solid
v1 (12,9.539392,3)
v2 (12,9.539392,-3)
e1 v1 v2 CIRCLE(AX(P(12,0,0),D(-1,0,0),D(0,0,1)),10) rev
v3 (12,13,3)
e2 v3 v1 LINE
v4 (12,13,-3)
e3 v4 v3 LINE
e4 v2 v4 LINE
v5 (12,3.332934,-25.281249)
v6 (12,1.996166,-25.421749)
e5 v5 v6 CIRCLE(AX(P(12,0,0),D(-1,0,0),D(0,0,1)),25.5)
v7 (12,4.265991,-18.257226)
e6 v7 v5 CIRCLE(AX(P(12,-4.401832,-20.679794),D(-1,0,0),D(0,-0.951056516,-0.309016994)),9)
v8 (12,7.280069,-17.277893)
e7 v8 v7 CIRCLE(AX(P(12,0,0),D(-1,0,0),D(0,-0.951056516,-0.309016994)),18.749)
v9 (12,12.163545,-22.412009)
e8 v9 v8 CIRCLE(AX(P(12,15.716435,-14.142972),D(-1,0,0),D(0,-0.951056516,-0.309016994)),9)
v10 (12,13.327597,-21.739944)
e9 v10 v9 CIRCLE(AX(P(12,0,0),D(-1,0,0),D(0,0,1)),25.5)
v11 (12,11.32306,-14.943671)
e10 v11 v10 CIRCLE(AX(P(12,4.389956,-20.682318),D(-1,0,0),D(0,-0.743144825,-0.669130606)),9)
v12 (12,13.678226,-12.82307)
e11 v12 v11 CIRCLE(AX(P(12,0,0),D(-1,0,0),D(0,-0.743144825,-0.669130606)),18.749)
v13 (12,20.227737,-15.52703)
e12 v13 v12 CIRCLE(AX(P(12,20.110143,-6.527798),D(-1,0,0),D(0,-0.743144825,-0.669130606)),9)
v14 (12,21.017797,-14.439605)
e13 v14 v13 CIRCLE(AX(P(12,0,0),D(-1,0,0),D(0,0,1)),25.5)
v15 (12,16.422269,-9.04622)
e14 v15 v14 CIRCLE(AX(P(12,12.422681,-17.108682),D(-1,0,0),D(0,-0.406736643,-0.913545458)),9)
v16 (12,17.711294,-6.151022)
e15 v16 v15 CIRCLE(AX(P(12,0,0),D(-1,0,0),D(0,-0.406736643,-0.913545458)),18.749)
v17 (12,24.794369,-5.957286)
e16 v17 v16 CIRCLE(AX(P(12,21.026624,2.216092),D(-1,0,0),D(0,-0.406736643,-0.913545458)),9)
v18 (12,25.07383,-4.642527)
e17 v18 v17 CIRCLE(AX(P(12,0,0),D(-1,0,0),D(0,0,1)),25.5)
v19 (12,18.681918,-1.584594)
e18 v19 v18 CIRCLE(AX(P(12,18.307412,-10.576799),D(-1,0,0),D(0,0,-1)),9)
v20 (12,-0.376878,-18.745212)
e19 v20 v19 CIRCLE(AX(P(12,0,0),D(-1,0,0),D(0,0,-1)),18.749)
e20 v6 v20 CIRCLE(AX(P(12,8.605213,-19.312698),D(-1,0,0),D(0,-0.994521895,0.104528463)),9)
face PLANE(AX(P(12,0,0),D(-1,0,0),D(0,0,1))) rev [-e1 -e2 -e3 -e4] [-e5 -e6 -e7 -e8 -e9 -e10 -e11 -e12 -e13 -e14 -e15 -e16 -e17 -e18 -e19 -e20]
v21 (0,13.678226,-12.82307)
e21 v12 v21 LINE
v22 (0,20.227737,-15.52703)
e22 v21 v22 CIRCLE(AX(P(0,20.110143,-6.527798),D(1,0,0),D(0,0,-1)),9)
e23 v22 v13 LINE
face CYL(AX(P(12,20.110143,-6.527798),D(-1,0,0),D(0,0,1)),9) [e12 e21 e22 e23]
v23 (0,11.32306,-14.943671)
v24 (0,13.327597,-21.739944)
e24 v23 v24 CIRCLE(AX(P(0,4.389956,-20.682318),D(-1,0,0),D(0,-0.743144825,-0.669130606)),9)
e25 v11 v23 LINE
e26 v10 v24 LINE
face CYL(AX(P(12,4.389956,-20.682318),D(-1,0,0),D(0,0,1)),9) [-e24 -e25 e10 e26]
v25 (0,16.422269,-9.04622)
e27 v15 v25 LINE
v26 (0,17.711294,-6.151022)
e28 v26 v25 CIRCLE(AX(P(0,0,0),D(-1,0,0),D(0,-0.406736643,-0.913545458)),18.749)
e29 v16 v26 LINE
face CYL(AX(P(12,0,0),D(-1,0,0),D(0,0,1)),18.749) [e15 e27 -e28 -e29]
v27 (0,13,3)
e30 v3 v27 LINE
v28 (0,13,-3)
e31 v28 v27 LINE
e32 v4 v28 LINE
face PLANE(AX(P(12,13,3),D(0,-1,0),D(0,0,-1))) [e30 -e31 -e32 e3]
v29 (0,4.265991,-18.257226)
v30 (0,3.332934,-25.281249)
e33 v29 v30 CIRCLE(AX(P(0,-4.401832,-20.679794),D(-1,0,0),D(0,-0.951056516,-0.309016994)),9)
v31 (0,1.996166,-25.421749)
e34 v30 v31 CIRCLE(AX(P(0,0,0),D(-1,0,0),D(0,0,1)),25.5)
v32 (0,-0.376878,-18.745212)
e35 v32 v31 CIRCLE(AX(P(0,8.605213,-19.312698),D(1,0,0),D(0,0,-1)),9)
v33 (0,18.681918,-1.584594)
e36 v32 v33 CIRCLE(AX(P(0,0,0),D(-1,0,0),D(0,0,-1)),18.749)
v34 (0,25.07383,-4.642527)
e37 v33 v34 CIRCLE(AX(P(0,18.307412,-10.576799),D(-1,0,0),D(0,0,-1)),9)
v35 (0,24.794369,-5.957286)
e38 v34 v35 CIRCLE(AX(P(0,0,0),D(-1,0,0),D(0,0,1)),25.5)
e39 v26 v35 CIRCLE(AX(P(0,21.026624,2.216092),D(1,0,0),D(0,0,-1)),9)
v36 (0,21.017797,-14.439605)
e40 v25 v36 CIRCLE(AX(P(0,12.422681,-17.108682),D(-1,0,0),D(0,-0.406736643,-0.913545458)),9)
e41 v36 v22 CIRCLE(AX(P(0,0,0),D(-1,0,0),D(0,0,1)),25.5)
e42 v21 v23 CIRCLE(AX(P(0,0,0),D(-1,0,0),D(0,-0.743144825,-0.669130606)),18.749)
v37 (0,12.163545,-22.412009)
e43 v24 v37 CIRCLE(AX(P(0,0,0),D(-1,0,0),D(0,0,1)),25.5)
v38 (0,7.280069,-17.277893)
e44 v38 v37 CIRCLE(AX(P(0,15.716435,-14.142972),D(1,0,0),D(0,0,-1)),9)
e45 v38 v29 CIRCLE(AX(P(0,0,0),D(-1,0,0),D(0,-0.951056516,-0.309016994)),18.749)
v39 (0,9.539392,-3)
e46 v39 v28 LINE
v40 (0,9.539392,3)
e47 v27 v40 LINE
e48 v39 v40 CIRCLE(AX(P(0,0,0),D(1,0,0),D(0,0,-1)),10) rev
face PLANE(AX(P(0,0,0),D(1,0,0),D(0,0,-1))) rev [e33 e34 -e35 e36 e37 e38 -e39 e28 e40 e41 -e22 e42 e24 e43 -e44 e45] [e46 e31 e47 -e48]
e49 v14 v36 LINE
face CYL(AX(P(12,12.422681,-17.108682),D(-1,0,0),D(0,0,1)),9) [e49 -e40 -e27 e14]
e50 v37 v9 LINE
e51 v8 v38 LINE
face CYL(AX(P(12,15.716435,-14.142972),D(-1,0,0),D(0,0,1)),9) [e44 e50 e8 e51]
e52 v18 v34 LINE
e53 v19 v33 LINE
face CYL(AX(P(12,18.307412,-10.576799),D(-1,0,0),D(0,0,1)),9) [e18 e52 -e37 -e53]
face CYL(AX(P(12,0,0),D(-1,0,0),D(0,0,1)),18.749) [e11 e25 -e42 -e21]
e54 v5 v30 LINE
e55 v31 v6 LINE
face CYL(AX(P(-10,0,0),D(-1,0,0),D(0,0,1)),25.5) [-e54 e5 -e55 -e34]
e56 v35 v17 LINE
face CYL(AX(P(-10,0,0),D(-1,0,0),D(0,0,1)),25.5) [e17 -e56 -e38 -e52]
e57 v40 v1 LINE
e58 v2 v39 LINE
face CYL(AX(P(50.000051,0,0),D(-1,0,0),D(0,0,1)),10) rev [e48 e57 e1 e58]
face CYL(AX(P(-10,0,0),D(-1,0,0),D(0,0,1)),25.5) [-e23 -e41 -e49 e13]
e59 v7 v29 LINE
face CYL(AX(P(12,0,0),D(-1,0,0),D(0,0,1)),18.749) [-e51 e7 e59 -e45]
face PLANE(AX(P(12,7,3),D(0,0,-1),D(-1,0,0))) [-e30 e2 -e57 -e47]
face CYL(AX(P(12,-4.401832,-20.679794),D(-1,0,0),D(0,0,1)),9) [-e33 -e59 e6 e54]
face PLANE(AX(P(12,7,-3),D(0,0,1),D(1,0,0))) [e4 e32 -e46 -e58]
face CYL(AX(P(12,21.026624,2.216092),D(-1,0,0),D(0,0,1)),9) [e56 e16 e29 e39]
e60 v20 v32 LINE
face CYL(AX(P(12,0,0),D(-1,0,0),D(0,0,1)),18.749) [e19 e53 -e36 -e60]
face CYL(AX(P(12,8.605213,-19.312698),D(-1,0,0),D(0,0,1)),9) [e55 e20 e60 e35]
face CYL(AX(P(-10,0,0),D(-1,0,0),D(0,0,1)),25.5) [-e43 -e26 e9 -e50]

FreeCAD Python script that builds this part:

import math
import FreeCAD as App
import Part
import Sketcher

doc = App.newDocument("Part")
body = doc.addObject("PartDesign::Body", "Body")

sketch1 = body.newObject("Sketcher::SketchObject", "Sketch")
sketch1.AttachmentSupport = (doc.getObject("XZ_Plane"), [""])
sketch1.MapMode = "FlatFace"
sketch1.addGeometry([
    Part.LineSegment(App.Vector(0, -26, 0), App.Vector(0, 0, 0)),
    Part.LineSegment(App.Vector(0, 0, 0), App.Vector(12, 0, 0)),
    Part.LineSegment(App.Vector(12, 0, 0), App.Vector(12, -26, 0)),
    Part.LineSegment(App.Vector(12, -26, 0), App.Vector(0, -26, 0)),
], False)
sketch1.addConstraint([
    Sketcher.Constraint("Coincident", 0, 2, 1, 1),
    Sketcher.Constraint("Coincident", 1, 2, 2, 1),
    Sketcher.Constraint("Coincident", 2, 2, 3, 1),
    Sketcher.Constraint("Coincident", 3, 2, 0, 1),
    Sketcher.Constraint("Vertical", 0),
    Sketcher.Constraint("Horizontal", 1),
    Sketcher.Constraint("Vertical", 2),
    Sketcher.Constraint("Horizontal", 3),
    Sketcher.Constraint("Coincident", 0, 2, -1, 1),
    Sketcher.Constraint("DistanceX", 1, 1, 1, 2, 12.0),
    Sketcher.Constraint("DistanceY", 0, 1, 0, 2, 25.5),
])
revolution = body.newObject("PartDesign::Revolution", "Revolution")
revolution.Profile = sketch1
revolution.ReferenceAxis = (sketch1, ["H_Axis"])
revolution.Angle = 360

sketch2 = body.newObject("Sketcher::SketchObject", "Sketch001")
sketch2.AttachmentSupport = (doc.getObject("YZ_Plane"), [""])
sketch2.MapMode = "FlatFace"
sketch2.addGeometry([
    Part.ArcOfCircle(Part.Circle(App.Vector(0, 0, 0), App.Vector(0, 0, 1), 18.7), math.radians(-4.85), math.radians(4.85)),
    Part.ArcOfCircle(Part.Circle(App.Vector(18.3, -10.6, 0), App.Vector(0, 0, 1), 9), math.radians(41), math.radians(88)),
    Part.ArcOfCircle(Part.Circle(App.Vector(0, 0, 0), App.Vector(0, 0, 1), 25.5), math.radians(-11), math.radians(11)),
    Part.ArcOfCircle(Part.Circle(App.Vector(18.3, 10.6, 0), App.Vector(0, 0, 1), 9), math.radians(-88), math.radians(-41)),
], False)
sketch2.addConstraint([
    Sketcher.Constraint("Coincident", 0, 1, 1, 2),
    Sketcher.Constraint("Coincident", 1, 1, 2, 1),
    Sketcher.Constraint("Coincident", 2, 2, 3, 2),
    Sketcher.Constraint("Coincident", 3, 1, 0, 2),
    Sketcher.Constraint("Coincident", 0, 3, -1, 1),
    Sketcher.Constraint("Coincident", 2, 3, -1, 1),
    Sketcher.Constraint("Equal", 1, 3),
    Sketcher.Constraint("Symmetric", 1, 3, 3, 3, -1),
    Sketcher.Constraint("Radius", 1, 9.0),
    Sketcher.Constraint("Radius", 0, 18.749),
    Sketcher.Constraint("Radius", 2, 25.5254),
    Sketcher.Constraint("DistanceY", 1, 3, -1, 1, 10.576799),
    Sketcher.Constraint("DistanceX", -1, 1, 1, 3, 18.307412),
])
pocket1 = body.newObject("PartDesign::Pocket", "Pocket")
pocket1.Profile = sketch2
pocket1.Type = "ThroughAll"
pocket1.Reversed = True
doc.recompute()

polarpattern = body.newObject("PartDesign::PolarPattern", "PolarPattern")
polarpattern.Originals = [pocket1]
polarpattern.Axis = (doc.getObject("X_Axis"), [""])
polarpattern.Angle = 360
polarpattern.Occurrences = 15
body.Tip = polarpattern

sketch3 = body.newObject("Sketcher::SketchObject", "Sketch002")
sketch3.AttachmentSupport = (doc.getObject("YZ_Plane"), [""])
sketch3.MapMode = "FlatFace"
sketch3.addGeometry(Part.Circle(App.Vector(0, 0, 0), App.Vector(0, 0, 1), 10), False)
sketch3.addConstraint([
    Sketcher.Constraint("Coincident", 0, 3, -1, 1),
    Sketcher.Constraint("Diameter", 0, 20.0),
])
pocket2 = body.newObject("PartDesign::Pocket", "Pocket001")
pocket2.Profile = sketch3
pocket2.Length = 100.000102
pocket2.Midplane = True

sketch4 = body.newObject("Sketcher::SketchObject", "Sketch003")
sketch4.AttachmentSupport = (doc.getObject("YZ_Plane"), [""])
sketch4.MapMode = "FlatFace"
sketch4.addGeometry([
    Part.ArcOfCircle(Part.Circle(App.Vector(0, 0, 0), App.Vector(0, 0, 1), 19), math.radians(0), math.radians(265)),
    Part.LineSegment(App.Vector(19, 0, 0), App.Vector(29, 0, 0)),
    Part.LineSegment(App.Vector(29, 0, 0), App.Vector(29, 30, 0)),
    Part.LineSegment(App.Vector(29, 30, 0), App.Vector(-32, 30, 0)),
    Part.LineSegment(App.Vector(-32, 30, 0), App.Vector(-32, -30, 0)),
    Part.LineSegment(App.Vector(-32, -30, 0), App.Vector(-2, -30, 0)),
    Part.LineSegment(App.Vector(-2, -30, 0), App.Vector(-2, -19, 0)),
], False)
sketch4.addConstraint([
    Sketcher.Constraint("Coincident", 0, 1, 1, 1),
    Sketcher.Constraint("Coincident", 1, 2, 2, 1),
    Sketcher.Constraint("Coincident", 2, 2, 3, 1),
    Sketcher.Constraint("Coincident", 3, 2, 4, 1),
    Sketcher.Constraint("Coincident", 4, 2, 5, 1),
    Sketcher.Constraint("Coincident", 5, 2, 6, 1),
    Sketcher.Constraint("Coincident", 6, 2, 0, 2),
    Sketcher.Constraint("Horizontal", 1),
    Sketcher.Constraint("Vertical", 2),
    Sketcher.Constraint("Horizontal", 3),
    Sketcher.Constraint("Vertical", 4),
    Sketcher.Constraint("Horizontal", 5),
    Sketcher.Constraint("Vertical", 6),
    Sketcher.Constraint("Coincident", 0, 3, -1, 1),
    Sketcher.Constraint("PointOnObject", 0, 1, -1),
    Sketcher.Constraint("Radius", 0, 18.749),
    Sketcher.Constraint("DistanceX", 1, 1, 1, 2, 10.470389),
    Sketcher.Constraint("DistanceX", 5, 1, 5, 2, 30.851939),
    Sketcher.Constraint("DistanceX", 3, 2, 3, 1, 61.703878),
    Sketcher.Constraint("DistanceY", 2, 1, 2, 2, 29.845265),
    Sketcher.Constraint("DistanceY", 4, 2, 4, 1, 60.011688),
])
pocket3 = body.newObject("PartDesign::Pocket", "Pocket002")
pocket3.Profile = sketch4
pocket3.Type = "ThroughAll"
pocket3.Reversed = True

sketch5 = body.newObject("Sketcher::SketchObject", "Sketch004")
sketch5.AttachmentSupport = (doc.getObject("YZ_Plane"), [""])
sketch5.MapMode = "FlatFace"
sketch5.addGeometry([
    Part.LineSegment(App.Vector(13, 3, 0), App.Vector(7, 3, 0)),
    Part.LineSegment(App.Vector(7, 3, 0), App.Vector(7, -3, 0)),
    Part.LineSegment(App.Vector(7, -3, 0), App.Vector(13, -3, 0)),
    Part.LineSegment(App.Vector(13, -3, 0), App.Vector(13, 3, 0)),
], False)
sketch5.addConstraint([
    Sketcher.Constraint("Coincident", 0, 2, 1, 1),
    Sketcher.Constraint("Coincident", 1, 2, 2, 1),
    Sketcher.Constraint("Coincident", 2, 2, 3, 1),
    Sketcher.Constraint("Coincident", 3, 2, 0, 1),
    Sketcher.Constraint("Horizontal", 0),
    Sketcher.Constraint("Vertical", 1),
    Sketcher.Constraint("Horizontal", 2),
    Sketcher.Constraint("Vertical", 3),
    Sketcher.Constraint("Equal", 2, 1),
    Sketcher.Constraint("DistanceX", 0, 2, 0, 1, 6.0),
    Sketcher.Constraint("DistanceX", -1, 1, 0, 2, 7.0),
    Sketcher.Constraint("DistanceY", -1, 1, 0, 2, 3.0),
])
pocket4 = body.newObject("PartDesign::Pocket", "Pocket003")
pocket4.Profile = sketch5
pocket4.Type = "ThroughAll"
pocket4.Midplane = True

doc.recompute()
